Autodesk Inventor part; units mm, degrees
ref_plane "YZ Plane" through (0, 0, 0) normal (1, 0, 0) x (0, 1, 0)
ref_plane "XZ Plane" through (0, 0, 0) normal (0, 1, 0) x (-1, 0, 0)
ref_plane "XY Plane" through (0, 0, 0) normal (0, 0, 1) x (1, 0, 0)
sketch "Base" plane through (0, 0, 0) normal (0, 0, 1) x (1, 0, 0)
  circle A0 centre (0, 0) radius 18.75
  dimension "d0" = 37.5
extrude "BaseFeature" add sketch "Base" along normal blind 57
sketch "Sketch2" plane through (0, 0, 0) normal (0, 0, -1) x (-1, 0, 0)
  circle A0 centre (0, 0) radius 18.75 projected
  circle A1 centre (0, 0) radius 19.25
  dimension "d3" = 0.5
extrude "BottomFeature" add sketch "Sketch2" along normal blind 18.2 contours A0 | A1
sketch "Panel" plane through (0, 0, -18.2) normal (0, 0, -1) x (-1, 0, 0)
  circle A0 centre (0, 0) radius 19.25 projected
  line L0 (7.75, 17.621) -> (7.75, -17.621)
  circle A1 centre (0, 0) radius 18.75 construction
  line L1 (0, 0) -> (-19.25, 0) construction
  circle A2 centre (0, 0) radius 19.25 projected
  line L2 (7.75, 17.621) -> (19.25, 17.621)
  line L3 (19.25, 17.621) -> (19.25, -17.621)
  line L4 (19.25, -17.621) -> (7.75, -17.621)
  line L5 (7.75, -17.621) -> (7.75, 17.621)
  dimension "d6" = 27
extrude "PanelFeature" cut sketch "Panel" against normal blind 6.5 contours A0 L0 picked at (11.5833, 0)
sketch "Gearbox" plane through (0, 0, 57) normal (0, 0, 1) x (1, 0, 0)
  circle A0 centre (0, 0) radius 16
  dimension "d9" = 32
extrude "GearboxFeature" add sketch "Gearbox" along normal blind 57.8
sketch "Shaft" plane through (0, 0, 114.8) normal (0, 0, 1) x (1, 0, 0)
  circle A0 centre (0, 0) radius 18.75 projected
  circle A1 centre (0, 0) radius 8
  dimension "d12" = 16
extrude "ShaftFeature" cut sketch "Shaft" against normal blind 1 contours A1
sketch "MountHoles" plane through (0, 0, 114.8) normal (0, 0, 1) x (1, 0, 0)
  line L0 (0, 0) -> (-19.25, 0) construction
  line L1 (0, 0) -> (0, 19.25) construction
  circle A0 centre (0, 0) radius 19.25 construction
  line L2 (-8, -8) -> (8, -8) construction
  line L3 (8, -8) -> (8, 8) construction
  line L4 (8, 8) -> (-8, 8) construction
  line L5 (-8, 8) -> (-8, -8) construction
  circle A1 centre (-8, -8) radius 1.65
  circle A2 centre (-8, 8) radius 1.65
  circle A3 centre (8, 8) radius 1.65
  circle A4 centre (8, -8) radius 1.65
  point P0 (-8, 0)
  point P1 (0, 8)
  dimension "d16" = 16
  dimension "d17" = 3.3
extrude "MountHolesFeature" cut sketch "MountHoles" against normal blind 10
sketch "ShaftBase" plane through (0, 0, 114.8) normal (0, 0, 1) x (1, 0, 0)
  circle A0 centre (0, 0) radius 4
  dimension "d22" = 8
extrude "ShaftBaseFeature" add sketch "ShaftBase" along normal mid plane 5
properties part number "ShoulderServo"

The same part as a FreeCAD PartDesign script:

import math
import FreeCAD as App
import Part
import Sketcher

doc = App.newDocument("Part")
body = doc.addObject("PartDesign::Body", "Body")

# Sketch on XY plane
sketch1 = body.newObject("Sketcher::SketchObject", "Sketch")
sketch1.AttachmentSupport = (doc.getObject("XY_Plane"), [""])
sketch1.MapMode = "FlatFace"
sketch1.addGeometry(Part.Circle(App.Vector(0, 0, 0), App.Vector(0, 0, 1), 19), False)
sketch1.addConstraint([
    Sketcher.Constraint("Coincident", 0, 3, -1, 1),
    Sketcher.Constraint("Diameter", 0, 37.5),
])
pad1 = body.newObject("PartDesign::Pad", "Pad")
pad1.Profile = sketch1
pad1.Length = 57

# Sketch on XY plane
sketch2 = body.newObject("Sketcher::SketchObject", "Sketch001")
sketch2.AttachmentSupport = (doc.getObject("XY_Plane"), [""])
sketch2.MapMode = "FlatFace"
sketch2.addGeometry(Part.Circle(App.Vector(0, 0, 0), App.Vector(0, 0, 1), 19), False)
sketch2.addConstraint([
    Sketcher.Constraint("Coincident", 0, 3, -1, 1),
    Sketcher.Constraint("Diameter", 0, 38.5),
])
pad2 = body.newObject("PartDesign::Pad", "Pad001")
pad2.Profile = sketch2
pad2.Length = 18.2
pad2.Reversed = True

# Sketch on XY plane
sketch3 = body.newObject("Sketcher::SketchObject", "Sketch002")
sketch3.AttachmentSupport = (doc.getObject("XY_Plane"), [""])
sketch3.MapMode = "FlatFace"
sketch3.AttachmentOffset = App.Placement(App.Vector(0, 0, -18.2), App.Rotation())
sketch3.addGeometry([
    Part.ArcOfCircle(Part.Circle(App.Vector(0, 0, 0), App.Vector(0, 0, 1), 19), math.radians(114), math.radians(246)),
    Part.LineSegment(App.Vector(-8, -18, 0), App.Vector(-8, 18, 0)),
], False)
sketch3.addConstraint([
    Sketcher.Constraint("Coincident", 0, 1, 1, 2),
    Sketcher.Constraint("Coincident", 1, 1, 0, 2),
    Sketcher.Constraint("Vertical", 1),
    Sketcher.Constraint("Coincident", 0, 3, -1, 1),
    Sketcher.Constraint("Radius", 0, 19.25),
    Sketcher.Constraint("DistanceY", 1, 1, 1, 2, 35.242),
])
pocket1 = body.newObject("PartDesign::Pocket", "Pocket")
pocket1.Profile = sketch3
pocket1.Length = 6.5
pocket1.Reversed = True

# Sketch on XY plane
sketch4 = body.newObject("Sketcher::SketchObject", "Sketch003")
sketch4.AttachmentSupport = (doc.getObject("XY_Plane"), [""])
sketch4.MapMode = "FlatFace"
sketch4.AttachmentOffset = App.Placement(App.Vector(0, 0, 57), App.Rotation())
sketch4.addGeometry(Part.Circle(App.Vector(0, 0, 0), App.Vector(0, 0, 1), 16), False)
sketch4.addConstraint([
    Sketcher.Constraint("Coincident", 0, 3, -1, 1),
    Sketcher.Constraint("Diameter", 0, 32.0),
])
pad3 = body.newObject("PartDesign::Pad", "Pad002")
pad3.Profile = sketch4
pad3.Length = 57.8

# Sketch on XY plane
sketch5 = body.newObject("Sketcher::SketchObject", "Sketch004")
sketch5.AttachmentSupport = (doc.getObject("XY_Plane"), [""])
sketch5.MapMode = "FlatFace"
sketch5.AttachmentOffset = App.Placement(App.Vector(0, 0, 114.8), App.Rotation())
sketch5.addGeometry(Part.Circle(App.Vector(0, 0, 0), App.Vector(0, 0, 1), 8), False)
sketch5.addConstraint([
    Sketcher.Constraint("Coincident", 0, 3, -1, 1),
    Sketcher.Constraint("Diameter", 0, 16.0),
])
pocket2 = body.newObject("PartDesign::Pocket", "Pocket001")
pocket2.Profile = sketch5
pocket2.Length = 1

# Sketch on XY plane
sketch6 = body.newObject("Sketcher::SketchObject", "Sketch005")
sketch6.AttachmentSupport = (doc.getObject("XY_Plane"), [""])
sketch6.MapMode = "FlatFace"
sketch6.AttachmentOffset = App.Placement(App.Vector(0, 0, 114.8), App.Rotation())
sketch6.addGeometry([
    Part.Circle(App.Vector(-8, -8, 0), App.Vector(0, 0, 1), 1.6),
    Part.Circle(App.Vector(-8, 8, 0), App.Vector(0, 0, 1), 1.6),
    Part.Circle(App.Vector(8, 8, 0), App.Vector(0, 0, 1), 1.6),
    Part.Circle(App.Vector(8, -8, 0), App.Vector(0, 0, 1), 1.6),
], False)
sketch6.addConstraint([
    Sketcher.Constraint("Equal", 0, 1),
    Sketcher.Constraint("Equal", 1, 2),
    Sketcher.Constraint("Equal", 2, 3),
    Sketcher.Constraint("Symmetric", 0, 3, 2, 3, -1, 1),
    Sketcher.Constraint("Symmetric", 1, 3, 3, 3, -1, 1),
    Sketcher.Constraint("Symmetric", 1, 3, 2, 3, -2),
    Sketcher.Constraint("Diameter", 0, 3.3),
    Sketcher.Constraint("DistanceY", 0, 3, 1, 3, 16.0),
    Sketcher.Constraint("DistanceX", 1, 3, 2, 3, 16.0),
])
pocket3 = body.newObject("PartDesign::Pocket", "Pocket002")
pocket3.Profile = sketch6
pocket3.Length = 10

# Sketch on XY plane
sketch7 = body.newObject("Sketcher::SketchObject", "Sketch006")
sketch7.AttachmentSupport = (doc.getObject("XY_Plane"), [""])
sketch7.MapMode = "FlatFace"
sketch7.AttachmentOffset = App.Placement(App.Vector(0, 0, 114.8), App.Rotation())
sketch7.addGeometry(Part.Circle(App.Vector(0, 0, 0), App.Vector(0, 0, 1), 4), False)
sketch7.addConstraint([
    Sketcher.Constraint("Coincident", 0, 3, -1, 1),
    Sketcher.Constraint("Diameter", 0, 8.0),
])
pad4 = body.newObject("PartDesign::Pad", "Pad003")
pad4.Profile = sketch7
pad4.Length = 5
pad4.Midplane = True

doc.recompute()
